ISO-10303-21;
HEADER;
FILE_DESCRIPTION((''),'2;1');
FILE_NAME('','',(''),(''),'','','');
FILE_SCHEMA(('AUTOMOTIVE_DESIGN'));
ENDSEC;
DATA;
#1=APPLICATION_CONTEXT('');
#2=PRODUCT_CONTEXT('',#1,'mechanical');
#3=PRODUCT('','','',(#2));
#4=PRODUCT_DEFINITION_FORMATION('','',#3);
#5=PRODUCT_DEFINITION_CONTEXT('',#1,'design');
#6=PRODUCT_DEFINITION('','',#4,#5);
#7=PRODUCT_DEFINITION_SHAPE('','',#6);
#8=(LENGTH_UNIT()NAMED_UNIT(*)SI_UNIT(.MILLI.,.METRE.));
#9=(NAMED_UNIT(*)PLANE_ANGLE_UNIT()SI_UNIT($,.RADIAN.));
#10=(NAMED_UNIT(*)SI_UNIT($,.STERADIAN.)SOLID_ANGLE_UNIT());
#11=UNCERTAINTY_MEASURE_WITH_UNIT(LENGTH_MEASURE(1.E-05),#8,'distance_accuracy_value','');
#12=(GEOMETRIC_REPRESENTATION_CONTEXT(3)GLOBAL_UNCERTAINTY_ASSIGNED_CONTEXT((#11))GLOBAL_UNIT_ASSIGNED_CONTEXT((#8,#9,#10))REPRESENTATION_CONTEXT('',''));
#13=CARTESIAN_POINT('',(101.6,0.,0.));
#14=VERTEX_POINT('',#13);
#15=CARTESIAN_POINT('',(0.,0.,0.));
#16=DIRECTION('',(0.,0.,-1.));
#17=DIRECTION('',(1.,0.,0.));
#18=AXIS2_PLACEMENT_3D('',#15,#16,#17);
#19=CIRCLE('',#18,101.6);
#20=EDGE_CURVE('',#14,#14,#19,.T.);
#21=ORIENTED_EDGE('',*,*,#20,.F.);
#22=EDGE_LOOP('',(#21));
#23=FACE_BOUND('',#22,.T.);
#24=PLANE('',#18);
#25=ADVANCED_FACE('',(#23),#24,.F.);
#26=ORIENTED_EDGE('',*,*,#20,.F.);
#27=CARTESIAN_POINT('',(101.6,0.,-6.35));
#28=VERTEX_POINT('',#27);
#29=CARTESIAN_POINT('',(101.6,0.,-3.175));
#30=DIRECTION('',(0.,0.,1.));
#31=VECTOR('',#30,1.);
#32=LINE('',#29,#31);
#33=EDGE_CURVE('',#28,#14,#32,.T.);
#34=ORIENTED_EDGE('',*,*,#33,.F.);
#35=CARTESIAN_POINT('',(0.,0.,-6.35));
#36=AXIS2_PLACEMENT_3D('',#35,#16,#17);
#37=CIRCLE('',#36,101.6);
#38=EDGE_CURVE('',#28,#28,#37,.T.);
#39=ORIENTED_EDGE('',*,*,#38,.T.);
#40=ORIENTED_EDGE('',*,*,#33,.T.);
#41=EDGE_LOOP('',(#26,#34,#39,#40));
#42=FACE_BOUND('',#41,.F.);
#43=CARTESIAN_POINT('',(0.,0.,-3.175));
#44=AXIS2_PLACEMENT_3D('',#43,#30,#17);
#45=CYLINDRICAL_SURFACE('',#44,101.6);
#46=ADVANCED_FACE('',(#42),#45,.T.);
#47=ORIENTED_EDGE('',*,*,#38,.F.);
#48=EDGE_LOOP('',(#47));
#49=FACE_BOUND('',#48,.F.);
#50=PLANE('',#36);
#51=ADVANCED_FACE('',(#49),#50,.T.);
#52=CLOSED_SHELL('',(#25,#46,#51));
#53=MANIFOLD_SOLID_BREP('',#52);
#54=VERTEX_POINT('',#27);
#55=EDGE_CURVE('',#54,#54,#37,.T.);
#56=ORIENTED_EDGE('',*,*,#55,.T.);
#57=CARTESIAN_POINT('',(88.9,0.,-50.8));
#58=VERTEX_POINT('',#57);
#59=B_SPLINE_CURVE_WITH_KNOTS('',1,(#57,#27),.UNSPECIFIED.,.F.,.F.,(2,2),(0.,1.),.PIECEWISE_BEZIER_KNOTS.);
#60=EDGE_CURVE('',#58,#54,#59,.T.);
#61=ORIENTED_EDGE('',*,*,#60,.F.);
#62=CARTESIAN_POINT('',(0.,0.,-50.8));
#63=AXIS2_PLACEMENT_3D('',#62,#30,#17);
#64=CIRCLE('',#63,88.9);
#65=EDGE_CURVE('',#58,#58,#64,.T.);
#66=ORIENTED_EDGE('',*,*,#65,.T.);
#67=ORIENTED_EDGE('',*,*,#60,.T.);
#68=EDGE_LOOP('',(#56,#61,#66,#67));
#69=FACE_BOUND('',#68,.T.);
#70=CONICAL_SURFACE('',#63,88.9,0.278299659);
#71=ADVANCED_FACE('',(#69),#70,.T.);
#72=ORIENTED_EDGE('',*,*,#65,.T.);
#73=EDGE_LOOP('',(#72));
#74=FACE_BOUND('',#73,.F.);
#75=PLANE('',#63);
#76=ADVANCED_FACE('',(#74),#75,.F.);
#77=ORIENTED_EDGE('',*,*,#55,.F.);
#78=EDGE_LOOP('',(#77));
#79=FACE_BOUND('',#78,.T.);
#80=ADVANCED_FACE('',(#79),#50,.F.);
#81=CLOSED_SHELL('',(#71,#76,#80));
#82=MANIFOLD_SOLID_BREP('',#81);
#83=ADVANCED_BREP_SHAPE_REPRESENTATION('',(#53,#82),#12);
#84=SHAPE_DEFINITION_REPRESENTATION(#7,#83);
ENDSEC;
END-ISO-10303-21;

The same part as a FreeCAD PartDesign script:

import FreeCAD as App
import Part
import Sketcher
Q = App.Units.Quantity

doc = App.newDocument("Part")
body = doc.addObject("PartDesign::Body", "Body")

# Sketch on XZ plane
sketch1 = body.newObject("Sketcher::SketchObject", "Sketch")
sketch1.AttachmentSupport = (doc.getObject("XZ_Plane"), [""])
sketch1.MapMode = "FlatFace"
sketch1.addGeometry([
    Part.LineSegment(App.Vector(0, 0, 0), App.Vector(0, -6, 0)),
    Part.LineSegment(App.Vector(0, -6, 0), App.Vector(102, -6, 0)),
    Part.LineSegment(App.Vector(102, -6, 0), App.Vector(102, 0, 0)),
    Part.LineSegment(App.Vector(102, 0, 0), App.Vector(0, 0, 0)),
], False)
sketch1.addConstraint([
    Sketcher.Constraint("Coincident", 0, 2, 1, 1),
    Sketcher.Constraint("Coincident", 1, 2, 2, 1),
    Sketcher.Constraint("Coincident", 2, 2, 3, 1),
    Sketcher.Constraint("Coincident", 3, 2, 0, 1),
    Sketcher.Constraint("Vertical", 0),
    Sketcher.Constraint("Horizontal", 1),
    Sketcher.Constraint("Vertical", 2),
    Sketcher.Constraint("Horizontal", 3),
    Sketcher.Constraint("Coincident", 3, 2, -1, 1),
    Sketcher.Constraint("DistanceX", 1, 1, 1, 2, Q("4 in")),
    Sketcher.Constraint("DistanceY", 0, 2, 0, 1, Q("0.25 in")),
])
revolution = body.newObject("PartDesign::Revolution", "Revolution")
revolution.Profile = sketch1
revolution.ReferenceAxis = (sketch1, ["V_Axis"])
revolution.Angle = 360
body2 = doc.addObject("PartDesign::Body", "Body001")

# Sketch on XZ plane
sketch2 = body2.newObject("Sketcher::SketchObject", "Sketch001")
sketch2.AttachmentSupport = (doc.getObject("XZ_Plane001"), [""])
sketch2.MapMode = "FlatFace"
sketch2.addGeometry([
    Part.LineSegment(App.Vector(0, -51, 0), App.Vector(0, -60, 0)),
    Part.LineSegment(App.Vector(0, -60, 0), App.Vector(89, -60, 0)),
    Part.LineSegment(App.Vector(89, -60, 0), App.Vector(89, -51, 0)),
    Part.LineSegment(App.Vector(89, -51, 0), App.Vector(0, -51, 0)),
], False)
sketch2.addConstraint([
    Sketcher.Constraint("Coincident", 0, 2, 1, 1),
    Sketcher.Constraint("Coincident", 1, 2, 2, 1),
    Sketcher.Constraint("Coincident", 2, 2, 3, 1),
    Sketcher.Constraint("Coincident", 3, 2, 0, 1),
    Sketcher.Constraint("Vertical", 0),
    Sketcher.Constraint("Horizontal", 1),
    Sketcher.Constraint("Vertical", 2),
    Sketcher.Constraint("Horizontal", 3),
    Sketcher.Constraint("PointOnObject", 0, 2, -2),
    Sketcher.Constraint("DistanceX", 1, 1, 1, 2, Q("3.5 in")),
    Sketcher.Constraint("DistanceY", 2, 2, -1, 1, Q("2 in")),
    Sketcher.Constraint("DistanceY", 0, 2, 0, 1, 8.930966),
])
revolution2 = body2.newObject("PartDesign::Revolution", "Revolution001")
revolution2.Profile = sketch2
revolution2.ReferenceAxis = (sketch2, ["V_Axis"])
revolution2.Angle = 360
body3 = doc.addObject("PartDesign::Body", "Body002")

# Sketch on XY plane
sketch3 = body3.newObject("Sketcher::SketchObject", "Sketch002")
sketch3.AttachmentSupport = (doc.getObject("XY_Plane002"), [""])
sketch3.MapMode = "FlatFace"
sketch3.AttachmentOffset = App.Placement(App.Vector(0, 0, -2 * 25.4), App.Rotation())
sketch3.addGeometry(Part.Circle(App.Vector(0, 0, 0), App.Vector(0, 0, 1), 89), False)
sketch3.addConstraint([
    Sketcher.Constraint("Coincident", 0, 3, -1, 1),
    Sketcher.Constraint("Diameter", 0, Q("7 in")),
])

# Sketch on XY plane
sketch4 = body3.newObject("Sketcher::SketchObject", "Sketch003")
sketch4.AttachmentSupport = (doc.getObject("XY_Plane002"), [""])
sketch4.MapMode = "FlatFace"
sketch4.AttachmentOffset = App.Placement(App.Vector(0, 0, -0.25 * 25.4), App.Rotation())
sketch4.addGeometry(Part.Circle(App.Vector(0, 0, 0), App.Vector(0, 0, 1), 102), False)
sketch4.addConstraint([
    Sketcher.Constraint("Coincident", 0, 3, -1, 1),
    Sketcher.Constraint("Diameter", 0, Q("8 in")),
])

additiveloft = body3.newObject("PartDesign::AdditiveLoft", "AdditiveLoft")
additiveloft.Profile = sketch3
additiveloft.Sections = [sketch4]
body2.Visibility = False

doc.recompute()
